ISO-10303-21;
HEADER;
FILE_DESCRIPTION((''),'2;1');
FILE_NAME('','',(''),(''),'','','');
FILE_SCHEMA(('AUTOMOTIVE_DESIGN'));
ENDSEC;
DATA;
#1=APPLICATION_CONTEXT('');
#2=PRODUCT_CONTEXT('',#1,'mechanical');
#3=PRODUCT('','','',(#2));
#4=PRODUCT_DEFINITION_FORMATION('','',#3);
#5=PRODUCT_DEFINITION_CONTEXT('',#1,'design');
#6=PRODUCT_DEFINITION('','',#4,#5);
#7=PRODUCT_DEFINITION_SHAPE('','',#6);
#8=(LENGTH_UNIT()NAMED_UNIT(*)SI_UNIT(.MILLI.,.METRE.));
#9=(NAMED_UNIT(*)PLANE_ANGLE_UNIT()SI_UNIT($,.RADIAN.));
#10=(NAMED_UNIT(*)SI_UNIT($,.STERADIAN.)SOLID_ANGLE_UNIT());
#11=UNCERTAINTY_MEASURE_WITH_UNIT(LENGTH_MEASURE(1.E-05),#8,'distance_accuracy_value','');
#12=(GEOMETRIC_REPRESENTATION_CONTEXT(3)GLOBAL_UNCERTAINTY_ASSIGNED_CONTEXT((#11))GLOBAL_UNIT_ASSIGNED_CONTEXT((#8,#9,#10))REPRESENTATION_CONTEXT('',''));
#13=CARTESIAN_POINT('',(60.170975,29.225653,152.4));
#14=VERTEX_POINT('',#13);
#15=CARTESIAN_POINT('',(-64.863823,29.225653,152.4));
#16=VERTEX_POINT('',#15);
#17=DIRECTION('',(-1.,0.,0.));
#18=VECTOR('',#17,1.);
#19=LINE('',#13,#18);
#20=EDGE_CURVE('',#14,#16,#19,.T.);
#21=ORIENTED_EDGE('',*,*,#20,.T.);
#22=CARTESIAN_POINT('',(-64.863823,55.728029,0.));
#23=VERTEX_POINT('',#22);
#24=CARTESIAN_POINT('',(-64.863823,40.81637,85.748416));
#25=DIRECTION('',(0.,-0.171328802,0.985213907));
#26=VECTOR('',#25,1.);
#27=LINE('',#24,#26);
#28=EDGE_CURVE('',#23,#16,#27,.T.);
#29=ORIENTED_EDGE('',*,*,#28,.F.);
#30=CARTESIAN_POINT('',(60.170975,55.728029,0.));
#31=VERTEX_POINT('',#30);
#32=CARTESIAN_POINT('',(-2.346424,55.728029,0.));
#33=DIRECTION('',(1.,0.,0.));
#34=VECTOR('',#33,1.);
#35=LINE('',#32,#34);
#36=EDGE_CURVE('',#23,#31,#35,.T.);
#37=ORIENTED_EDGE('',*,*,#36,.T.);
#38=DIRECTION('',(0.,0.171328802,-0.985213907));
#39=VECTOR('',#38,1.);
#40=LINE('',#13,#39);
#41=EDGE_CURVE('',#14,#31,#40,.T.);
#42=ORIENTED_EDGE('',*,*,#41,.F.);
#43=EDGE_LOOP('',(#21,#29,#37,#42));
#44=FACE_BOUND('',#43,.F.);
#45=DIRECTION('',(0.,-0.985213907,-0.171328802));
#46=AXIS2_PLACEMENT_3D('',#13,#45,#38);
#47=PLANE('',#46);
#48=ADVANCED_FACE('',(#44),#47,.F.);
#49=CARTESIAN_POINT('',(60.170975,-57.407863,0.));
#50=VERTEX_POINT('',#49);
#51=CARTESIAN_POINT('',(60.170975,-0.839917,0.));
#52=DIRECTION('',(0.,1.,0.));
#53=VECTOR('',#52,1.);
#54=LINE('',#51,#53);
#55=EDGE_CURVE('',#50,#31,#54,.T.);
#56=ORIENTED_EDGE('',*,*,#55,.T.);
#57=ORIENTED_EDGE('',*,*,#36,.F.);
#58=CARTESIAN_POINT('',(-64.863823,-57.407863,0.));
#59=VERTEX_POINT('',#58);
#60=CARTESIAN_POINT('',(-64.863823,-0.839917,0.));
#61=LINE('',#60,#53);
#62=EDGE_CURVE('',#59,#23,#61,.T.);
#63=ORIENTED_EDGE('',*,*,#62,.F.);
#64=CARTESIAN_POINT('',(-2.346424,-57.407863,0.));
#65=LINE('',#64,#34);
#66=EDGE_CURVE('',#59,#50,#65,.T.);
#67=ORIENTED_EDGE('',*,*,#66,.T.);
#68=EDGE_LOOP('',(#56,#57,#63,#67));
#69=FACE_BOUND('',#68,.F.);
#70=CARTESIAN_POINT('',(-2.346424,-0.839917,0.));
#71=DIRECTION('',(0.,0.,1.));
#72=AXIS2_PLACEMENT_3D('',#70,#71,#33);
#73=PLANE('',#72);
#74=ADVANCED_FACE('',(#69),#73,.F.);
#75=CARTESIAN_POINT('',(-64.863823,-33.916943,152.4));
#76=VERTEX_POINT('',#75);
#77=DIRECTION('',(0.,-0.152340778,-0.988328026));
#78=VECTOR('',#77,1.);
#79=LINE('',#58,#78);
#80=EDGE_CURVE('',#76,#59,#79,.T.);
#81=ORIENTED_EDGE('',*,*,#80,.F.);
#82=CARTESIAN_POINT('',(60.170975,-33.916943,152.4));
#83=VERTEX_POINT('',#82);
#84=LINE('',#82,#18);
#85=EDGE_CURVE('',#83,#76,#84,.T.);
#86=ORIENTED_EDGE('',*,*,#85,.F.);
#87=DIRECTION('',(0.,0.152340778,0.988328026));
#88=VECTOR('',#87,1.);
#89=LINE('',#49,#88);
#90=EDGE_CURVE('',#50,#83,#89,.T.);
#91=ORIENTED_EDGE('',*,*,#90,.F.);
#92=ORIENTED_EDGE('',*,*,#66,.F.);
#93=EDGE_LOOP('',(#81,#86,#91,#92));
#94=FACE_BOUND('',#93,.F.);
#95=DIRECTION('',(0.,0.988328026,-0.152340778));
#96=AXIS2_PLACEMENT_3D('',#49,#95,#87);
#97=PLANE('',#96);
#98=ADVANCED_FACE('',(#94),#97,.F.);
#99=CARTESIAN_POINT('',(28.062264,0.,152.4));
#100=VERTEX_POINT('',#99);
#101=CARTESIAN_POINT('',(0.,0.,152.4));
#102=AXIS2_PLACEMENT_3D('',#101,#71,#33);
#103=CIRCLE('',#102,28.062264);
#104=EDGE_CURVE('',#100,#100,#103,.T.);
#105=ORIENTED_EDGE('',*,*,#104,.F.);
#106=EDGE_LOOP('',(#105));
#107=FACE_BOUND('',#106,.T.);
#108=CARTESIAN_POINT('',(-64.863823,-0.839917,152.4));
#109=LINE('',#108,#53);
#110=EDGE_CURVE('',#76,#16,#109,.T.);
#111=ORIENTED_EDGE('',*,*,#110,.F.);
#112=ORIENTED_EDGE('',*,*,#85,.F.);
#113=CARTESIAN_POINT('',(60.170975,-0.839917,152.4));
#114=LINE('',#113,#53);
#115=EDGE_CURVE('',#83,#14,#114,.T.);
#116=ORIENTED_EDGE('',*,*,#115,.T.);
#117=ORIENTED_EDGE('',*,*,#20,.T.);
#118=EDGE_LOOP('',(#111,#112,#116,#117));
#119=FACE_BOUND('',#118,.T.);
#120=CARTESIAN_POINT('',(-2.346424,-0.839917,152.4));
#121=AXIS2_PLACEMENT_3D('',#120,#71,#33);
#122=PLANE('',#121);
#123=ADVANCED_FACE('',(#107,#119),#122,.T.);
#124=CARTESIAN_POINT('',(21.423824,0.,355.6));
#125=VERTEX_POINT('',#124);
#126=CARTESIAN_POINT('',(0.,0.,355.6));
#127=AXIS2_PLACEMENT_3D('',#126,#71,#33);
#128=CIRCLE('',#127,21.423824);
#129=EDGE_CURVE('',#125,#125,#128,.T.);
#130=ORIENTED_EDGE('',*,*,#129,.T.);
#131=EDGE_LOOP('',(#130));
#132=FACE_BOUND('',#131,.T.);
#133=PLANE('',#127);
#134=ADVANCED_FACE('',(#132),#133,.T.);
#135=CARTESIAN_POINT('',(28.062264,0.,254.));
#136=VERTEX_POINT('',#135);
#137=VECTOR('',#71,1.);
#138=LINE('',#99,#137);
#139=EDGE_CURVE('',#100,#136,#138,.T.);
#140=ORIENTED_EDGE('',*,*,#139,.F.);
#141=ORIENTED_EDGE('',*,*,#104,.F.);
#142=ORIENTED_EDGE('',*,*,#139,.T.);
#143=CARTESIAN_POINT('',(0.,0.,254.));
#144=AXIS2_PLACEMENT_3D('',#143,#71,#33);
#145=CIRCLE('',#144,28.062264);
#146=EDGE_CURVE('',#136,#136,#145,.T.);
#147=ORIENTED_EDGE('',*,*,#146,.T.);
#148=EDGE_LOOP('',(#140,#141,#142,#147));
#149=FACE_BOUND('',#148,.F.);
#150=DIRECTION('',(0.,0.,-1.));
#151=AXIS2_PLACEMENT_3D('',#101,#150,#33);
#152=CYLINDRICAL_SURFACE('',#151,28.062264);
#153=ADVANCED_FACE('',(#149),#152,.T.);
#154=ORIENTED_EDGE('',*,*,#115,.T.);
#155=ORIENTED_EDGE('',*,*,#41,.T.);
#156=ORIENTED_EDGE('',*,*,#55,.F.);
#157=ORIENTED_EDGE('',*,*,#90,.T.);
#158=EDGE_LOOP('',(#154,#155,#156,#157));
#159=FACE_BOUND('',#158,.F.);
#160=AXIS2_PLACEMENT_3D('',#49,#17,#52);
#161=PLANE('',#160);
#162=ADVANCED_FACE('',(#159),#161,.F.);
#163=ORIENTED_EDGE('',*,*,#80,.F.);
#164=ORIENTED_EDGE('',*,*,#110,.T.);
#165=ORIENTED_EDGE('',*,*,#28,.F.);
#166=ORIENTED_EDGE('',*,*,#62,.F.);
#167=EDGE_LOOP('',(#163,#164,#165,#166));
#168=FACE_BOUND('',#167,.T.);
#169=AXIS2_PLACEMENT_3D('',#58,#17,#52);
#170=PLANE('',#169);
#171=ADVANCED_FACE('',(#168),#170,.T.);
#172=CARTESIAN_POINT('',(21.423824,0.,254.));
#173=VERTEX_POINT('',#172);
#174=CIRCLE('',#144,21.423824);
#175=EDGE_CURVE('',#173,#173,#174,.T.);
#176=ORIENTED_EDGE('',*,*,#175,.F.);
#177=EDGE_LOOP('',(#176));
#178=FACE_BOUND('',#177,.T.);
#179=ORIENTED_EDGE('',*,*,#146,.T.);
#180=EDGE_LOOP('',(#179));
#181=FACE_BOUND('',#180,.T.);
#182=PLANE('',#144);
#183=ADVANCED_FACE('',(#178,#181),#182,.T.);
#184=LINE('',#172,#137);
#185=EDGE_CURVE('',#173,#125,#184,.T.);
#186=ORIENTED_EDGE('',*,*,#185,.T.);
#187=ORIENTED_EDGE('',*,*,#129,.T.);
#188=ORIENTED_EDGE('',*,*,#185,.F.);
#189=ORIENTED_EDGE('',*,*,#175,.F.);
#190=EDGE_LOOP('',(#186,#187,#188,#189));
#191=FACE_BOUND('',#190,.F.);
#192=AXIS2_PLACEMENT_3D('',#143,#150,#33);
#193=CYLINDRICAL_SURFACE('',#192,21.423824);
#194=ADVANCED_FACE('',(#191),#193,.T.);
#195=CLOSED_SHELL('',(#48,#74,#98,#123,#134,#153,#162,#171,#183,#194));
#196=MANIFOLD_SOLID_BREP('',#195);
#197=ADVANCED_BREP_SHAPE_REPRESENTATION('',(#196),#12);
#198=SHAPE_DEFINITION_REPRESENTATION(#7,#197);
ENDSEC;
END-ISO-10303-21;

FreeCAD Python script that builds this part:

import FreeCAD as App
import Part
import Sketcher
Q = App.Units.Quantity


def add_polygon(sketch, points):
    """Adds a closed chain of lines whose ends are joined by coincident constraints."""
    first, n = sketch.GeometryCount, len(points)
    for a, b in zip(points, points[1:] + points[:1]):
        sketch.addGeometry(Part.LineSegment(App.Vector(*a, 0), App.Vector(*b, 0)), False)
    for i in range(n):
        sketch.addConstraint(Sketcher.Constraint("Coincident", first + i, 2, first + (i + 1) % n, 1))

doc = App.newDocument("Part")
body = doc.addObject("PartDesign::Body", "Body")

# Sketch on XY plane
sketch1 = body.newObject("Sketcher::SketchObject", "Sketch")
sketch1.AttachmentSupport = (doc.getObject("XY_Plane"), [""])
sketch1.MapMode = "FlatFace"
add_polygon(sketch1, [(-65, 56), (-65, -57), (60, -57), (60, 56)])  # lines 0-3
sketch1.addConstraint([
    Sketcher.Constraint("Vertical", 0),
    Sketcher.Constraint("Horizontal", 1),
    Sketcher.Constraint("Vertical", 2),
    Sketcher.Constraint("Horizontal", 3),
    Sketcher.Constraint("DistanceY", 0, 2, 0, 1, Q("113.135892 mm")),
    Sketcher.Constraint("DistanceX", 1, 1, 1, 2, Q("125.034798 mm")),
    Sketcher.Constraint("DistanceY", -1, 1, 2, 2, Q("55.728029 mm")),
    Sketcher.Constraint("DistanceX", 0, 2, -1, 1, Q("64.863823 mm")),
])
pad1 = body.newObject("PartDesign::Pad", "Pad")
pad1.Profile = sketch1
pad1.Length = Q("6 in")

# Sketch on YZ plane
sketch2 = body.newObject("Sketcher::SketchObject", "Sketch001")
sketch2.AttachmentSupport = (doc.getObject("YZ_Plane"), [""])
sketch2.MapMode = "FlatFace"
sketch2.AttachmentOffset = App.Placement(App.Vector(0, 0, 60.170975), App.Rotation())
add_polygon(sketch2, [(-57, 152), (-57, 0), (-34, 152)])  # lines 0-2
sketch2.addConstraint([
    Sketcher.Constraint("Vertical", 0),
    Sketcher.Constraint("Horizontal", 2),
    Sketcher.Constraint("PointOnObject", 0, 2, -1),
    Sketcher.Constraint("DistanceY", 0, 2, 0, 1, Q("6 in")),
    Sketcher.Constraint("DistanceX", 2, 2, 2, 1, Q("23.49092 mm")),
    Sketcher.Constraint("DistanceX", 0, 2, -1, 1, Q("57.407863 mm")),
])
pocket1 = body.newObject("PartDesign::Pocket", "Pocket")
pocket1.Profile = sketch2
pocket1.Type = "ThroughAll"

# Sketch on YZ plane
sketch3 = body.newObject("Sketcher::SketchObject", "Sketch002")
sketch3.AttachmentSupport = (doc.getObject("YZ_Plane"), [""])
sketch3.MapMode = "FlatFace"
sketch3.AttachmentOffset = App.Placement(App.Vector(0, 0, 60.170975), App.Rotation())
add_polygon(sketch3, [(29, 152), (56, 0), (56, 152)])  # lines 0-2
sketch3.addConstraint([
    Sketcher.Constraint("Vertical", 1),
    Sketcher.Constraint("Horizontal", 2),
    Sketcher.Constraint("PointOnObject", 0, 2, -1),
    Sketcher.Constraint("DistanceY", 1, 1, 1, 2, Q("6 in")),
    Sketcher.Constraint("Distance", 0, Q("154.68722 mm")),
    Sketcher.Constraint("DistanceX", -1, 1, 0, 2, Q("55.728029 mm")),
])
pocket2 = body.newObject("PartDesign::Pocket", "Pocket001")
pocket2.Profile = sketch3
pocket2.Type = "ThroughAll"

# Sketch on XY plane
sketch4 = body.newObject("Sketcher::SketchObject", "Sketch003")
sketch4.AttachmentSupport = (doc.getObject("XY_Plane"), [""])
sketch4.MapMode = "FlatFace"
sketch4.AttachmentOffset = App.Placement(App.Vector(0, 0, 6 * 25.4), App.Rotation())
sketch4.addGeometry(Part.Circle(App.Vector(0, 0, 0), App.Vector(0, 0, 1), 28), False)
sketch4.addConstraint([
    Sketcher.Constraint("Coincident", 0, 3, -1, 1),
    Sketcher.Constraint("Diameter", 0, Q("56.124528 mm")),
])
pad2 = body.newObject("PartDesign::Pad", "Pad001")
pad2.Profile = sketch4
pad2.Length = Q("4 in")

# Sketch on XY plane
sketch5 = body.newObject("Sketcher::SketchObject", "Sketch004")
sketch5.AttachmentSupport = (doc.getObject("XY_Plane"), [""])
sketch5.MapMode = "FlatFace"
sketch5.AttachmentOffset = App.Placement(App.Vector(0, 0, 10 * 25.4), App.Rotation())
sketch5.addGeometry(Part.Circle(App.Vector(0, 0, 0), App.Vector(0, 0, 1), 21), False)
sketch5.addConstraint([
    Sketcher.Constraint("Coincident", 0, 3, -1, 1),
    Sketcher.Constraint("Diameter", 0, Q("42.847648 mm")),
])
pad3 = body.newObject("PartDesign::Pad", "Pad002")
pad3.Profile = sketch5
pad3.Length = Q("4 in")

doc.recompute()
